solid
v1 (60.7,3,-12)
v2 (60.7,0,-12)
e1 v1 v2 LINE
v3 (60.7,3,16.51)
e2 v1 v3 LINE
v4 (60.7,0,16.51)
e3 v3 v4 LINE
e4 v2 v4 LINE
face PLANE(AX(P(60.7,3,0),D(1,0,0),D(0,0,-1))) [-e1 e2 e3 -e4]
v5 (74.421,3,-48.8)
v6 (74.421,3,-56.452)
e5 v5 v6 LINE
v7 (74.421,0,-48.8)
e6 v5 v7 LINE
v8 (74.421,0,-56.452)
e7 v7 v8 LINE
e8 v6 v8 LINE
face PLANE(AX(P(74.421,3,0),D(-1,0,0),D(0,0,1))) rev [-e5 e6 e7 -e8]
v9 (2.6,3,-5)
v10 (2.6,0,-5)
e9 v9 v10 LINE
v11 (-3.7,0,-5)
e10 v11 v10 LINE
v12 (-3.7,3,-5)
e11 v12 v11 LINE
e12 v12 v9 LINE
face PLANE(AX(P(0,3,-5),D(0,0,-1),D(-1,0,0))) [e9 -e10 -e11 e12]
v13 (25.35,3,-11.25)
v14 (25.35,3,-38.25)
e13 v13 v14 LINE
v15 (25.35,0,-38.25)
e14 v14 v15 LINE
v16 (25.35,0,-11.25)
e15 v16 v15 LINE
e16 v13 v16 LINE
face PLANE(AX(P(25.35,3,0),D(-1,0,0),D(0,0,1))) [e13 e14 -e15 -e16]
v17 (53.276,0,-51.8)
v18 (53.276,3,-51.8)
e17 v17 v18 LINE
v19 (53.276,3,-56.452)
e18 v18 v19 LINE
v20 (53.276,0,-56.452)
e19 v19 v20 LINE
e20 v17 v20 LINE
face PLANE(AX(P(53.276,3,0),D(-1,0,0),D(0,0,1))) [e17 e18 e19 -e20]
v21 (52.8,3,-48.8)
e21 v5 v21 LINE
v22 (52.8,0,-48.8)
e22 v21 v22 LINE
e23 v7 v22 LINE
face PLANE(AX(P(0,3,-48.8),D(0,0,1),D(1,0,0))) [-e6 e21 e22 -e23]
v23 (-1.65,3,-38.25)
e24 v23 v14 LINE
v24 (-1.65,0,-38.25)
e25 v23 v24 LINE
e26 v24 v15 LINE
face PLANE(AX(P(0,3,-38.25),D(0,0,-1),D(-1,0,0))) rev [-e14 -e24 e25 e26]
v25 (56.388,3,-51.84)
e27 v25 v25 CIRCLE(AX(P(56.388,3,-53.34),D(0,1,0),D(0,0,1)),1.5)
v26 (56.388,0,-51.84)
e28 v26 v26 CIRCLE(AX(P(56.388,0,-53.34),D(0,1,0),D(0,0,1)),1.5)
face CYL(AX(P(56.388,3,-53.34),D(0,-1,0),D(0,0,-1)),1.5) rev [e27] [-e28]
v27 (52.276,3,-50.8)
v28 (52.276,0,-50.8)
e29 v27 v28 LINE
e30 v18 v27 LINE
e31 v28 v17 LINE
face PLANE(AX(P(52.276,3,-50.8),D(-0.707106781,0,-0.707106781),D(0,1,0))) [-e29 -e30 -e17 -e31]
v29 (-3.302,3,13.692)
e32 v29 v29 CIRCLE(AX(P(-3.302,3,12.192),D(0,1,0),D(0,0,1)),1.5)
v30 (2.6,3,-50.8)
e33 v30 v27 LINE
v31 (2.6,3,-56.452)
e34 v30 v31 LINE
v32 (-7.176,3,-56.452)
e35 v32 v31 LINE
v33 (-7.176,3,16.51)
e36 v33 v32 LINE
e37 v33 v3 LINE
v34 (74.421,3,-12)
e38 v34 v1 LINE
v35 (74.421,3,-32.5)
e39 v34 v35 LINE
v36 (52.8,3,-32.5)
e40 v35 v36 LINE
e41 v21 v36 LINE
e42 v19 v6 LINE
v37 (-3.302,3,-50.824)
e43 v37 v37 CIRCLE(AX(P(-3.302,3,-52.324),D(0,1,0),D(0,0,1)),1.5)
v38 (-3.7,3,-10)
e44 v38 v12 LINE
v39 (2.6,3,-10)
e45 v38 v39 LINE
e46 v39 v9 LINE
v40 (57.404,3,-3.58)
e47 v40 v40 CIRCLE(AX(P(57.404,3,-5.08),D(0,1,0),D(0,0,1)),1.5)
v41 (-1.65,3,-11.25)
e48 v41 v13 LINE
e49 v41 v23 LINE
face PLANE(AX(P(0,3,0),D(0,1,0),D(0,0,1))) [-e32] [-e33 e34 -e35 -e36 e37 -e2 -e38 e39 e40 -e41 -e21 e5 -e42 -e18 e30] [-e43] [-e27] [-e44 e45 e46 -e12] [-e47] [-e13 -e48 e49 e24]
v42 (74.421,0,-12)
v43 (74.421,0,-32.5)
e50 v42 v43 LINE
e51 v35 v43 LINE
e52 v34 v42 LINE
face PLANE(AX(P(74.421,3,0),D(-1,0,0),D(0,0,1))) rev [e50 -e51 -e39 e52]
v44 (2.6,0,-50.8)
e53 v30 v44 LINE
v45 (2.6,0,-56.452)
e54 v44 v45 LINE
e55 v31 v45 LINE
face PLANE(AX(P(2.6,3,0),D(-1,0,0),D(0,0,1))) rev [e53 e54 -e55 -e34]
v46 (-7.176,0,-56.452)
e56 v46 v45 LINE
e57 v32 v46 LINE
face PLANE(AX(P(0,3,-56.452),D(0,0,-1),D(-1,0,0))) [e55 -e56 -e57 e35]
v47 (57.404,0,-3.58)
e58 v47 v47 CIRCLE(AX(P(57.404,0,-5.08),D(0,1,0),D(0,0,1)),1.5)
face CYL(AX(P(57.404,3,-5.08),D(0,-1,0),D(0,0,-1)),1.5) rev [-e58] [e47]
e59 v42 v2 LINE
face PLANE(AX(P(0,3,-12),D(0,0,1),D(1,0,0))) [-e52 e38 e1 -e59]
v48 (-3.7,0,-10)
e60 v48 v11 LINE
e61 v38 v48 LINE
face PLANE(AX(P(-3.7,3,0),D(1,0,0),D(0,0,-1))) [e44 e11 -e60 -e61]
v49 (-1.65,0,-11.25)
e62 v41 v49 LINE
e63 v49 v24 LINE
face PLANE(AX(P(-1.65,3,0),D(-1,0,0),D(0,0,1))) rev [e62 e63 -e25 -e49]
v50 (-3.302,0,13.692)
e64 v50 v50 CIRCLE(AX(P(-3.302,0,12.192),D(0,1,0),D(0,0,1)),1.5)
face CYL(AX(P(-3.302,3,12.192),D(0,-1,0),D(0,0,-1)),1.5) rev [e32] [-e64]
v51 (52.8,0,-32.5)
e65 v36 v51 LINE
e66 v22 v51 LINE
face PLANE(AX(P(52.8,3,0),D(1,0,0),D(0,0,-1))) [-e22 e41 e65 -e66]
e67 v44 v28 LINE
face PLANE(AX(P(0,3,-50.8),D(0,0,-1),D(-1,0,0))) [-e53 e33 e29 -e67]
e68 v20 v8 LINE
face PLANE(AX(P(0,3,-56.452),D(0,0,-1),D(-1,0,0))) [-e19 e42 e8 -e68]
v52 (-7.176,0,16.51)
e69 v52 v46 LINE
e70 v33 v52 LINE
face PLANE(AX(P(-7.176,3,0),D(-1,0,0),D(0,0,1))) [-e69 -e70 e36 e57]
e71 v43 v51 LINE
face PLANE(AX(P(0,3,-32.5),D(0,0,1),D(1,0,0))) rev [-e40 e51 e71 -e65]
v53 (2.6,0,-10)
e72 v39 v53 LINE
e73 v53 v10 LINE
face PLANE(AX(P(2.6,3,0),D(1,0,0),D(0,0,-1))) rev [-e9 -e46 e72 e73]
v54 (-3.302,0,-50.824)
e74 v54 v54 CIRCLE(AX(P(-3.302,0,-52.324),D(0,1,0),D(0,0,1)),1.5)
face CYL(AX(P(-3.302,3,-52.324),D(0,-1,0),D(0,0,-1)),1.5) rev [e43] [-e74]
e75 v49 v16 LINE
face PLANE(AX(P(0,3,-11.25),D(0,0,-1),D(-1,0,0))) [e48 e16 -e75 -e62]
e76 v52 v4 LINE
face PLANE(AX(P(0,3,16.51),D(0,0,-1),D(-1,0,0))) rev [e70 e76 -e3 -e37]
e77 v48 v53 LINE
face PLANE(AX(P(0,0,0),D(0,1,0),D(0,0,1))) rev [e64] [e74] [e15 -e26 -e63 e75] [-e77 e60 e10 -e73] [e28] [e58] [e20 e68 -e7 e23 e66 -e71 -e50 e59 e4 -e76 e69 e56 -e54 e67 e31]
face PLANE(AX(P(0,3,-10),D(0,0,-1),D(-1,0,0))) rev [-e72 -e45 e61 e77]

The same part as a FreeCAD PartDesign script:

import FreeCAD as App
import Part
import Sketcher
from FreeCAD import Vector
Q = App.Units.Quantity


def edges_at(feature, points):
    """Names of the edges that pass closest to the given points."""
    edges = feature.Shape.Edges
    near = lambda p: min(range(len(edges)), key=lambda i: edges[i].distToShape(Part.Vertex(*p))[0])
    return sorted({f"Edge{near(p) + 1}" for p in points})


def add_polygon(sketch, points):
    """Adds a closed chain of lines whose ends are joined by coincident constraints."""
    first, n = sketch.GeometryCount, len(points)
    for a, b in zip(points, points[1:] + points[:1]):
        sketch.addGeometry(Part.LineSegment(App.Vector(*a, 0), App.Vector(*b, 0)), False)
    for i in range(n):
        sketch.addConstraint(Sketcher.Constraint("Coincident", first + i, 2, first + (i + 1) % n, 1))

doc = App.newDocument("Part")
body = doc.addObject("PartDesign::Body", "Body")

# Sketch on XZ plane
sketch1 = doc.addObject("Sketcher::SketchObject", "Sketch")
body.addObject(sketch1)
sketch1.AttachmentSupport = (doc.XZ_Plane, [""])
sketch1.MapMode = "FlatFace"
add_polygon(sketch1, [(-7.2, -56.5), (-7.2, 16.5), (60.7, 16.5), (60.7, -12), (74.4, -12), (74.4, -32.5), (52.8, -32.5), (52.8, -48.8), (74.4, -48.8), (74.4, -56.5), (53.3, -56.5), (53.3, -50.8), (2.6, -50.8), (2.6, -56.5)])  # lines 0-13
sketch1.addGeometry(Part.Circle(Vector(-3.3, 12.2, 0), Vector(0, 0, 1), 1.5), False)  # 14
add_polygon(sketch1, [(2.6, -5), (-3.7, -5), (-3.7, -10), (2.6, -10)])  # lines 15-18
sketch1.addGeometry(Part.Circle(Vector(57.4, -5.1, 0), Vector(0, 0, 1), 1.5), False)  # 19
add_polygon(sketch1, [(25.4, -11.2), (-1.6, -11.2), (-1.6, -38.2), (25.4, -38.2)])  # lines 20-23
sketch1.addGeometry(Part.Circle(Vector(-3.3, -52.3, 0), Vector(0, 0, 1), 1.5), False)  # 24
sketch1.addGeometry(Part.Circle(Vector(56.4, -53.3, 0), Vector(0, 0, 1), 1.5), False)  # 25
sketch1.addConstraint([
    Sketcher.Constraint("Vertical", 0),
    Sketcher.Constraint("Horizontal", 1),
    Sketcher.Constraint("Vertical", 2),
    Sketcher.Constraint("Horizontal", 3),
    Sketcher.Constraint("Vertical", 4),
    Sketcher.Constraint("Horizontal", 5),
    Sketcher.Constraint("Vertical", 6),
    Sketcher.Constraint("Horizontal", 7),
    Sketcher.Constraint("Vertical", 8),
    Sketcher.Constraint("Horizontal", 9),
    Sketcher.Constraint("Vertical", 10),
    Sketcher.Constraint("Horizontal", 11),
    Sketcher.Constraint("Vertical", 12),
    Sketcher.Constraint("Horizontal", 13),
    Sketcher.Constraint("Horizontal", 15),
    Sketcher.Constraint("Vertical", 16),
    Sketcher.Constraint("Horizontal", 17),
    Sketcher.Constraint("Vertical", 18),
    Sketcher.Constraint("Horizontal", 20),
    Sketcher.Constraint("Vertical", 21),
    Sketcher.Constraint("Horizontal", 22),
    Sketcher.Constraint("Vertical", 23),
    Sketcher.Constraint("Equal", 14, 19),
    Sketcher.Constraint("Equal", 19, 24),
    Sketcher.Constraint("Equal", 24, 25),
    Sketcher.Constraint("Horizontal", 9, 2, 12, 2),
    Sketcher.Constraint("Vertical", 14, 3, 24, 3),
    Sketcher.Constraint("Vertical", 4, 2, 7, 2),
    Sketcher.Constraint("Vertical", 12, 2, 17, 2),
    Sketcher.Constraint("Equal", 22, 21),
    Sketcher.Constraint("Diameter", 14, Q("3 mm")),
    Sketcher.Constraint("DistanceX", 20, 2, 20, 1, Q("27 mm")),
    Sketcher.Constraint("DistanceY", 16, 2, 16, 1, Q("5 mm")),
    Sketcher.Constraint("DistanceX", 15, 2, 15, 1, Q("6.3 mm")),
    Sketcher.Constraint("DistanceY", 4, 2, 4, 1, Q("20.5 mm")),
    Sketcher.Constraint("DistanceY", 6, 2, 6, 1, Q("16.3 mm")),
    Sketcher.Constraint("DistanceY", 2, 2, -1, 1, Q("12 mm")),
    Sketcher.Constraint("DistanceY", 15, 2, -1, 1, Q("5 mm")),
    Sketcher.Constraint("DistanceY", 10, 2, 6, 2, Q("2 mm")),
    Sketcher.Constraint("DistanceY", 2, 2, 2, 1, Q("28.51 mm")),
    Sketcher.Constraint("DistanceX", -1, 1, 1, 2, Q("60.7 mm")),
    Sketcher.Constraint("DistanceX", -1, 1, 5, 2, Q("52.8 mm")),
    Sketcher.Constraint("DistanceX", -1, 1, 11, 2, Q("2.6 mm")),
    Sketcher.Constraint("DistanceX", 1, 1, 1, 2, Q("67.876 mm")),
    Sketcher.Constraint("DistanceX", 3, 1, 3, 2, Q("13.721 mm")),
    Sketcher.Constraint("DistanceX", 9, 2, 9, 1, Q("21.145 mm")),
    Sketcher.Constraint("DistanceY", 0, 1, 0, 2, Q("72.962 mm")),
    Sketcher.Constraint("DistanceY", 19, 3, -1, 1, Q("5.08 mm")),
    Sketcher.Constraint("DistanceY", 25, 3, -1, 1, Q("53.34 mm")),
    Sketcher.Constraint("DistanceX", 20, 2, -1, 1, Q("1.65 mm")),
    Sketcher.Constraint("DistanceY", 20, 2, -1, 1, Q("11.25 mm")),
    Sketcher.Constraint("DistanceX", 24, 3, 25, 3, Q("59.69 mm")),
    Sketcher.Constraint("DistanceX", 0, 2, 19, 3, Q("64.58 mm")),
    Sketcher.Constraint("DistanceX", 14, 3, -1, 1, Q("3.302 mm")),
    Sketcher.Constraint("DistanceY", -1, 1, 14, 3, Q("12.192 mm")),
    Sketcher.Constraint("DistanceY", 24, 3, -1, 1, Q("52.324 mm")),
])
pad1 = doc.addObject("PartDesign::Pad", "Pad")
body.addObject(pad1)
pad1.Profile = sketch1
pad1.Length = 3
pad1.Reversed = True
doc.recompute()

chamfer = doc.addObject("PartDesign::Chamfer", "Chamfer")
body.addObject(chamfer)
chamfer.Base = (pad1, edges_at(pad1, [(53.276, 1.5, -50.8)]))
chamfer.Size = 1

doc.recompute()
